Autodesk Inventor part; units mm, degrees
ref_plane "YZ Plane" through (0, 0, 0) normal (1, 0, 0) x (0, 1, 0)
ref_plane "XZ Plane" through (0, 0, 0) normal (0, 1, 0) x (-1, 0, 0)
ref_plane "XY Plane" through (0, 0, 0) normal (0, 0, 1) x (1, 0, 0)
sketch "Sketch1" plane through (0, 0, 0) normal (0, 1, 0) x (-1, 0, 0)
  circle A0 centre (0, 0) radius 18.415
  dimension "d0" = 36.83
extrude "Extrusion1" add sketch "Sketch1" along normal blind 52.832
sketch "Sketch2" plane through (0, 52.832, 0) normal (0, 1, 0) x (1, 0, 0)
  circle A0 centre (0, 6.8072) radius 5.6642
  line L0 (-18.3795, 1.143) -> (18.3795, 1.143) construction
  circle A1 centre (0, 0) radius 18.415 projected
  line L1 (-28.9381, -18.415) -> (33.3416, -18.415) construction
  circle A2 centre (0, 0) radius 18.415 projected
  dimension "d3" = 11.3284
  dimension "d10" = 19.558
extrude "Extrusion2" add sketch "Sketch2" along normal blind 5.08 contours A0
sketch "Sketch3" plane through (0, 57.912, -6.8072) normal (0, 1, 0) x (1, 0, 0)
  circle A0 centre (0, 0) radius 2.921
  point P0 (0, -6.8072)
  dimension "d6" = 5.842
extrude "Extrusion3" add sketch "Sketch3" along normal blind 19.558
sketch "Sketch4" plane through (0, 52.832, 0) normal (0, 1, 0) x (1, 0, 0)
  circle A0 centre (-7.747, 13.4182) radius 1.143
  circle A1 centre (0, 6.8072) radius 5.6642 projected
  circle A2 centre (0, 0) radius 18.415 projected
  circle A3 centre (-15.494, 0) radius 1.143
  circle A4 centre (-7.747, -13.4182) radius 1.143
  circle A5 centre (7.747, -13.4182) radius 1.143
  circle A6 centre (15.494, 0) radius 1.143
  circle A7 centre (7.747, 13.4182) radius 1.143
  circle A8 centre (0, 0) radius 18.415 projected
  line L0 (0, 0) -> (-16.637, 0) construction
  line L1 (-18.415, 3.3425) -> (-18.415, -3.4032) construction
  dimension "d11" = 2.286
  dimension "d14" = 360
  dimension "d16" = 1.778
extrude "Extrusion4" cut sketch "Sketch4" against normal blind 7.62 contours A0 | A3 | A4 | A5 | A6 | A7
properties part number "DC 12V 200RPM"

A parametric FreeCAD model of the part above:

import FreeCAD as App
import Part
import Sketcher
Q = App.Units.Quantity

doc = App.newDocument("Part")
body = doc.addObject("PartDesign::Body", "Body")

sketch1 = doc.addObject("Sketcher::SketchObject", "Sketch")
body.addObject(sketch1)
sketch1.AttachmentSupport = (doc.XZ_Plane, [""])
sketch1.MapMode = "FlatFace"
sketch1.addGeometry(Part.Circle(App.Vector(0, 0, 0), App.Vector(0, 0, 1), 18), False)
sketch1.addConstraint(Sketcher.Constraint("Coincident", 0, 3, -1, 1))
sketch1.addConstraint(Sketcher.Constraint("Diameter", 0, Q("1.45 in")))
pad1 = doc.addObject("PartDesign::Pad", "Pad")
body.addObject(pad1)
pad1.Profile = sketch1
pad1.Length = Q("2.08 in")
pad1.Reversed = True

sketch2 = doc.addObject("Sketcher::SketchObject", "Sketch001")
body.addObject(sketch2)
sketch2.AttachmentSupport = (doc.XZ_Plane, [""])
sketch2.MapMode = "FlatFace"
sketch2.AttachmentOffset = App.Placement(App.Vector(0, 0, -2.08 * 25.4), App.Rotation())
sketch2.addGeometry(Part.Circle(App.Vector(0, -7, 0), App.Vector(0, 0, 1), 6), False)
sketch2.addConstraint(Sketcher.Constraint("PointOnObject", 0, 3, -2))
sketch2.addConstraint(Sketcher.Constraint("Diameter", 0, Q("0.446 in")))
sketch2.addConstraint(Sketcher.Constraint("DistanceY", 0, 3, -1, 1, Q("0.268 in")))
pad2 = doc.addObject("PartDesign::Pad", "Pad001")
body.addObject(pad2)
pad2.Profile = sketch2
pad2.Length = Q("0.2 in")
pad2.Reversed = True

sketch3 = doc.addObject("Sketcher::SketchObject", "Sketch002")
body.addObject(sketch3)
sketch3.AttachmentSupport = (doc.XZ_Plane, [""])
sketch3.MapMode = "FlatFace"
sketch3.AttachmentOffset = App.Placement(App.Vector(0, 0, -2.28 * 25.4), App.Rotation())
sketch3.addGeometry(Part.Circle(App.Vector(0, -6.8, 0), App.Vector(0, 0, 1), 2.9), False)
sketch3.addConstraint(Sketcher.Constraint("PointOnObject", 0, 3, -2))
sketch3.addConstraint(Sketcher.Constraint("Diameter", 0, Q("0.23 in")))
sketch3.addConstraint(Sketcher.Constraint("DistanceY", 0, 3, -1, 1, Q("0.268 in")))
pad3 = doc.addObject("PartDesign::Pad", "Pad002")
body.addObject(pad3)
pad3.Profile = sketch3
pad3.Length = Q("0.77 in")
pad3.Reversed = True

sketch4 = doc.addObject("Sketcher::SketchObject", "Sketch003")
body.addObject(sketch4)
sketch4.AttachmentSupport = (doc.XZ_Plane, [""])
sketch4.MapMode = "FlatFace"
sketch4.AttachmentOffset = App.Placement(App.Vector(0, 0, -2.08 * 25.4), App.Rotation())
sketch4.addGeometry(Part.Circle(App.Vector(-7.7, -13.4, 0), App.Vector(0, 0, 1), 1.1), False)
sketch4.addGeometry(Part.Circle(App.Vector(-15.5, 0, 0), App.Vector(0, 0, 1), 1.1), False)
sketch4.addGeometry(Part.Circle(App.Vector(-7.7, 13.4, 0), App.Vector(0, 0, 1), 1.1), False)
sketch4.addGeometry(Part.Circle(App.Vector(7.7, 13.4, 0), App.Vector(0, 0, 1), 1.1), False)
sketch4.addGeometry(Part.Circle(App.Vector(15.5, 0, 0), App.Vector(0, 0, 1), 1.1), False)
sketch4.addGeometry(Part.Circle(App.Vector(7.7, -13.4, 0), App.Vector(0, 0, 1), 1.1), False)
sketch4.addConstraint(Sketcher.Constraint("Equal", 0, 1))
sketch4.addConstraint(Sketcher.Constraint("Equal", 1, 2))
sketch4.addConstraint(Sketcher.Constraint("Equal", 2, 3))
sketch4.addConstraint(Sketcher.Constraint("Equal", 3, 4))
sketch4.addConstraint(Sketcher.Constraint("Equal", 4, 5))
sketch4.addConstraint(Sketcher.Constraint("Symmetric", 0, 3, 3, 3, -1, 1))
sketch4.addConstraint(Sketcher.Constraint("Symmetric", 1, 3, 4, 3, -1, 1))
sketch4.addConstraint(Sketcher.Constraint("Symmetric", 2, 3, 5, 3, -1, 1))
sketch4.addConstraint(Sketcher.Constraint("Symmetric", 2, 3, 3, 3, -2))
sketch4.addConstraint(Sketcher.Constraint("PointOnObject", 1, 3, -1))
sketch4.addConstraint(Sketcher.Constraint("Diameter", 0, Q("0.09 in")))
sketch4.addConstraint(Sketcher.Constraint("DistanceX", 1, 3, -1, 1, Q("0.61 in")))
sketch4.addConstraint(Sketcher.Constraint("DistanceX", 2, 3, 3, 3, Q("0.61 in")))
sketch4.addConstraint(Sketcher.Constraint("DistanceY", 0, 3, -1, 1, 13.4182))
pocket1 = doc.addObject("PartDesign::Pocket", "Pocket")
body.addObject(pocket1)
pocket1.Profile = sketch4
pocket1.Length = Q("0.3 in")
pocket1.Reversed = True

doc.recompute()
